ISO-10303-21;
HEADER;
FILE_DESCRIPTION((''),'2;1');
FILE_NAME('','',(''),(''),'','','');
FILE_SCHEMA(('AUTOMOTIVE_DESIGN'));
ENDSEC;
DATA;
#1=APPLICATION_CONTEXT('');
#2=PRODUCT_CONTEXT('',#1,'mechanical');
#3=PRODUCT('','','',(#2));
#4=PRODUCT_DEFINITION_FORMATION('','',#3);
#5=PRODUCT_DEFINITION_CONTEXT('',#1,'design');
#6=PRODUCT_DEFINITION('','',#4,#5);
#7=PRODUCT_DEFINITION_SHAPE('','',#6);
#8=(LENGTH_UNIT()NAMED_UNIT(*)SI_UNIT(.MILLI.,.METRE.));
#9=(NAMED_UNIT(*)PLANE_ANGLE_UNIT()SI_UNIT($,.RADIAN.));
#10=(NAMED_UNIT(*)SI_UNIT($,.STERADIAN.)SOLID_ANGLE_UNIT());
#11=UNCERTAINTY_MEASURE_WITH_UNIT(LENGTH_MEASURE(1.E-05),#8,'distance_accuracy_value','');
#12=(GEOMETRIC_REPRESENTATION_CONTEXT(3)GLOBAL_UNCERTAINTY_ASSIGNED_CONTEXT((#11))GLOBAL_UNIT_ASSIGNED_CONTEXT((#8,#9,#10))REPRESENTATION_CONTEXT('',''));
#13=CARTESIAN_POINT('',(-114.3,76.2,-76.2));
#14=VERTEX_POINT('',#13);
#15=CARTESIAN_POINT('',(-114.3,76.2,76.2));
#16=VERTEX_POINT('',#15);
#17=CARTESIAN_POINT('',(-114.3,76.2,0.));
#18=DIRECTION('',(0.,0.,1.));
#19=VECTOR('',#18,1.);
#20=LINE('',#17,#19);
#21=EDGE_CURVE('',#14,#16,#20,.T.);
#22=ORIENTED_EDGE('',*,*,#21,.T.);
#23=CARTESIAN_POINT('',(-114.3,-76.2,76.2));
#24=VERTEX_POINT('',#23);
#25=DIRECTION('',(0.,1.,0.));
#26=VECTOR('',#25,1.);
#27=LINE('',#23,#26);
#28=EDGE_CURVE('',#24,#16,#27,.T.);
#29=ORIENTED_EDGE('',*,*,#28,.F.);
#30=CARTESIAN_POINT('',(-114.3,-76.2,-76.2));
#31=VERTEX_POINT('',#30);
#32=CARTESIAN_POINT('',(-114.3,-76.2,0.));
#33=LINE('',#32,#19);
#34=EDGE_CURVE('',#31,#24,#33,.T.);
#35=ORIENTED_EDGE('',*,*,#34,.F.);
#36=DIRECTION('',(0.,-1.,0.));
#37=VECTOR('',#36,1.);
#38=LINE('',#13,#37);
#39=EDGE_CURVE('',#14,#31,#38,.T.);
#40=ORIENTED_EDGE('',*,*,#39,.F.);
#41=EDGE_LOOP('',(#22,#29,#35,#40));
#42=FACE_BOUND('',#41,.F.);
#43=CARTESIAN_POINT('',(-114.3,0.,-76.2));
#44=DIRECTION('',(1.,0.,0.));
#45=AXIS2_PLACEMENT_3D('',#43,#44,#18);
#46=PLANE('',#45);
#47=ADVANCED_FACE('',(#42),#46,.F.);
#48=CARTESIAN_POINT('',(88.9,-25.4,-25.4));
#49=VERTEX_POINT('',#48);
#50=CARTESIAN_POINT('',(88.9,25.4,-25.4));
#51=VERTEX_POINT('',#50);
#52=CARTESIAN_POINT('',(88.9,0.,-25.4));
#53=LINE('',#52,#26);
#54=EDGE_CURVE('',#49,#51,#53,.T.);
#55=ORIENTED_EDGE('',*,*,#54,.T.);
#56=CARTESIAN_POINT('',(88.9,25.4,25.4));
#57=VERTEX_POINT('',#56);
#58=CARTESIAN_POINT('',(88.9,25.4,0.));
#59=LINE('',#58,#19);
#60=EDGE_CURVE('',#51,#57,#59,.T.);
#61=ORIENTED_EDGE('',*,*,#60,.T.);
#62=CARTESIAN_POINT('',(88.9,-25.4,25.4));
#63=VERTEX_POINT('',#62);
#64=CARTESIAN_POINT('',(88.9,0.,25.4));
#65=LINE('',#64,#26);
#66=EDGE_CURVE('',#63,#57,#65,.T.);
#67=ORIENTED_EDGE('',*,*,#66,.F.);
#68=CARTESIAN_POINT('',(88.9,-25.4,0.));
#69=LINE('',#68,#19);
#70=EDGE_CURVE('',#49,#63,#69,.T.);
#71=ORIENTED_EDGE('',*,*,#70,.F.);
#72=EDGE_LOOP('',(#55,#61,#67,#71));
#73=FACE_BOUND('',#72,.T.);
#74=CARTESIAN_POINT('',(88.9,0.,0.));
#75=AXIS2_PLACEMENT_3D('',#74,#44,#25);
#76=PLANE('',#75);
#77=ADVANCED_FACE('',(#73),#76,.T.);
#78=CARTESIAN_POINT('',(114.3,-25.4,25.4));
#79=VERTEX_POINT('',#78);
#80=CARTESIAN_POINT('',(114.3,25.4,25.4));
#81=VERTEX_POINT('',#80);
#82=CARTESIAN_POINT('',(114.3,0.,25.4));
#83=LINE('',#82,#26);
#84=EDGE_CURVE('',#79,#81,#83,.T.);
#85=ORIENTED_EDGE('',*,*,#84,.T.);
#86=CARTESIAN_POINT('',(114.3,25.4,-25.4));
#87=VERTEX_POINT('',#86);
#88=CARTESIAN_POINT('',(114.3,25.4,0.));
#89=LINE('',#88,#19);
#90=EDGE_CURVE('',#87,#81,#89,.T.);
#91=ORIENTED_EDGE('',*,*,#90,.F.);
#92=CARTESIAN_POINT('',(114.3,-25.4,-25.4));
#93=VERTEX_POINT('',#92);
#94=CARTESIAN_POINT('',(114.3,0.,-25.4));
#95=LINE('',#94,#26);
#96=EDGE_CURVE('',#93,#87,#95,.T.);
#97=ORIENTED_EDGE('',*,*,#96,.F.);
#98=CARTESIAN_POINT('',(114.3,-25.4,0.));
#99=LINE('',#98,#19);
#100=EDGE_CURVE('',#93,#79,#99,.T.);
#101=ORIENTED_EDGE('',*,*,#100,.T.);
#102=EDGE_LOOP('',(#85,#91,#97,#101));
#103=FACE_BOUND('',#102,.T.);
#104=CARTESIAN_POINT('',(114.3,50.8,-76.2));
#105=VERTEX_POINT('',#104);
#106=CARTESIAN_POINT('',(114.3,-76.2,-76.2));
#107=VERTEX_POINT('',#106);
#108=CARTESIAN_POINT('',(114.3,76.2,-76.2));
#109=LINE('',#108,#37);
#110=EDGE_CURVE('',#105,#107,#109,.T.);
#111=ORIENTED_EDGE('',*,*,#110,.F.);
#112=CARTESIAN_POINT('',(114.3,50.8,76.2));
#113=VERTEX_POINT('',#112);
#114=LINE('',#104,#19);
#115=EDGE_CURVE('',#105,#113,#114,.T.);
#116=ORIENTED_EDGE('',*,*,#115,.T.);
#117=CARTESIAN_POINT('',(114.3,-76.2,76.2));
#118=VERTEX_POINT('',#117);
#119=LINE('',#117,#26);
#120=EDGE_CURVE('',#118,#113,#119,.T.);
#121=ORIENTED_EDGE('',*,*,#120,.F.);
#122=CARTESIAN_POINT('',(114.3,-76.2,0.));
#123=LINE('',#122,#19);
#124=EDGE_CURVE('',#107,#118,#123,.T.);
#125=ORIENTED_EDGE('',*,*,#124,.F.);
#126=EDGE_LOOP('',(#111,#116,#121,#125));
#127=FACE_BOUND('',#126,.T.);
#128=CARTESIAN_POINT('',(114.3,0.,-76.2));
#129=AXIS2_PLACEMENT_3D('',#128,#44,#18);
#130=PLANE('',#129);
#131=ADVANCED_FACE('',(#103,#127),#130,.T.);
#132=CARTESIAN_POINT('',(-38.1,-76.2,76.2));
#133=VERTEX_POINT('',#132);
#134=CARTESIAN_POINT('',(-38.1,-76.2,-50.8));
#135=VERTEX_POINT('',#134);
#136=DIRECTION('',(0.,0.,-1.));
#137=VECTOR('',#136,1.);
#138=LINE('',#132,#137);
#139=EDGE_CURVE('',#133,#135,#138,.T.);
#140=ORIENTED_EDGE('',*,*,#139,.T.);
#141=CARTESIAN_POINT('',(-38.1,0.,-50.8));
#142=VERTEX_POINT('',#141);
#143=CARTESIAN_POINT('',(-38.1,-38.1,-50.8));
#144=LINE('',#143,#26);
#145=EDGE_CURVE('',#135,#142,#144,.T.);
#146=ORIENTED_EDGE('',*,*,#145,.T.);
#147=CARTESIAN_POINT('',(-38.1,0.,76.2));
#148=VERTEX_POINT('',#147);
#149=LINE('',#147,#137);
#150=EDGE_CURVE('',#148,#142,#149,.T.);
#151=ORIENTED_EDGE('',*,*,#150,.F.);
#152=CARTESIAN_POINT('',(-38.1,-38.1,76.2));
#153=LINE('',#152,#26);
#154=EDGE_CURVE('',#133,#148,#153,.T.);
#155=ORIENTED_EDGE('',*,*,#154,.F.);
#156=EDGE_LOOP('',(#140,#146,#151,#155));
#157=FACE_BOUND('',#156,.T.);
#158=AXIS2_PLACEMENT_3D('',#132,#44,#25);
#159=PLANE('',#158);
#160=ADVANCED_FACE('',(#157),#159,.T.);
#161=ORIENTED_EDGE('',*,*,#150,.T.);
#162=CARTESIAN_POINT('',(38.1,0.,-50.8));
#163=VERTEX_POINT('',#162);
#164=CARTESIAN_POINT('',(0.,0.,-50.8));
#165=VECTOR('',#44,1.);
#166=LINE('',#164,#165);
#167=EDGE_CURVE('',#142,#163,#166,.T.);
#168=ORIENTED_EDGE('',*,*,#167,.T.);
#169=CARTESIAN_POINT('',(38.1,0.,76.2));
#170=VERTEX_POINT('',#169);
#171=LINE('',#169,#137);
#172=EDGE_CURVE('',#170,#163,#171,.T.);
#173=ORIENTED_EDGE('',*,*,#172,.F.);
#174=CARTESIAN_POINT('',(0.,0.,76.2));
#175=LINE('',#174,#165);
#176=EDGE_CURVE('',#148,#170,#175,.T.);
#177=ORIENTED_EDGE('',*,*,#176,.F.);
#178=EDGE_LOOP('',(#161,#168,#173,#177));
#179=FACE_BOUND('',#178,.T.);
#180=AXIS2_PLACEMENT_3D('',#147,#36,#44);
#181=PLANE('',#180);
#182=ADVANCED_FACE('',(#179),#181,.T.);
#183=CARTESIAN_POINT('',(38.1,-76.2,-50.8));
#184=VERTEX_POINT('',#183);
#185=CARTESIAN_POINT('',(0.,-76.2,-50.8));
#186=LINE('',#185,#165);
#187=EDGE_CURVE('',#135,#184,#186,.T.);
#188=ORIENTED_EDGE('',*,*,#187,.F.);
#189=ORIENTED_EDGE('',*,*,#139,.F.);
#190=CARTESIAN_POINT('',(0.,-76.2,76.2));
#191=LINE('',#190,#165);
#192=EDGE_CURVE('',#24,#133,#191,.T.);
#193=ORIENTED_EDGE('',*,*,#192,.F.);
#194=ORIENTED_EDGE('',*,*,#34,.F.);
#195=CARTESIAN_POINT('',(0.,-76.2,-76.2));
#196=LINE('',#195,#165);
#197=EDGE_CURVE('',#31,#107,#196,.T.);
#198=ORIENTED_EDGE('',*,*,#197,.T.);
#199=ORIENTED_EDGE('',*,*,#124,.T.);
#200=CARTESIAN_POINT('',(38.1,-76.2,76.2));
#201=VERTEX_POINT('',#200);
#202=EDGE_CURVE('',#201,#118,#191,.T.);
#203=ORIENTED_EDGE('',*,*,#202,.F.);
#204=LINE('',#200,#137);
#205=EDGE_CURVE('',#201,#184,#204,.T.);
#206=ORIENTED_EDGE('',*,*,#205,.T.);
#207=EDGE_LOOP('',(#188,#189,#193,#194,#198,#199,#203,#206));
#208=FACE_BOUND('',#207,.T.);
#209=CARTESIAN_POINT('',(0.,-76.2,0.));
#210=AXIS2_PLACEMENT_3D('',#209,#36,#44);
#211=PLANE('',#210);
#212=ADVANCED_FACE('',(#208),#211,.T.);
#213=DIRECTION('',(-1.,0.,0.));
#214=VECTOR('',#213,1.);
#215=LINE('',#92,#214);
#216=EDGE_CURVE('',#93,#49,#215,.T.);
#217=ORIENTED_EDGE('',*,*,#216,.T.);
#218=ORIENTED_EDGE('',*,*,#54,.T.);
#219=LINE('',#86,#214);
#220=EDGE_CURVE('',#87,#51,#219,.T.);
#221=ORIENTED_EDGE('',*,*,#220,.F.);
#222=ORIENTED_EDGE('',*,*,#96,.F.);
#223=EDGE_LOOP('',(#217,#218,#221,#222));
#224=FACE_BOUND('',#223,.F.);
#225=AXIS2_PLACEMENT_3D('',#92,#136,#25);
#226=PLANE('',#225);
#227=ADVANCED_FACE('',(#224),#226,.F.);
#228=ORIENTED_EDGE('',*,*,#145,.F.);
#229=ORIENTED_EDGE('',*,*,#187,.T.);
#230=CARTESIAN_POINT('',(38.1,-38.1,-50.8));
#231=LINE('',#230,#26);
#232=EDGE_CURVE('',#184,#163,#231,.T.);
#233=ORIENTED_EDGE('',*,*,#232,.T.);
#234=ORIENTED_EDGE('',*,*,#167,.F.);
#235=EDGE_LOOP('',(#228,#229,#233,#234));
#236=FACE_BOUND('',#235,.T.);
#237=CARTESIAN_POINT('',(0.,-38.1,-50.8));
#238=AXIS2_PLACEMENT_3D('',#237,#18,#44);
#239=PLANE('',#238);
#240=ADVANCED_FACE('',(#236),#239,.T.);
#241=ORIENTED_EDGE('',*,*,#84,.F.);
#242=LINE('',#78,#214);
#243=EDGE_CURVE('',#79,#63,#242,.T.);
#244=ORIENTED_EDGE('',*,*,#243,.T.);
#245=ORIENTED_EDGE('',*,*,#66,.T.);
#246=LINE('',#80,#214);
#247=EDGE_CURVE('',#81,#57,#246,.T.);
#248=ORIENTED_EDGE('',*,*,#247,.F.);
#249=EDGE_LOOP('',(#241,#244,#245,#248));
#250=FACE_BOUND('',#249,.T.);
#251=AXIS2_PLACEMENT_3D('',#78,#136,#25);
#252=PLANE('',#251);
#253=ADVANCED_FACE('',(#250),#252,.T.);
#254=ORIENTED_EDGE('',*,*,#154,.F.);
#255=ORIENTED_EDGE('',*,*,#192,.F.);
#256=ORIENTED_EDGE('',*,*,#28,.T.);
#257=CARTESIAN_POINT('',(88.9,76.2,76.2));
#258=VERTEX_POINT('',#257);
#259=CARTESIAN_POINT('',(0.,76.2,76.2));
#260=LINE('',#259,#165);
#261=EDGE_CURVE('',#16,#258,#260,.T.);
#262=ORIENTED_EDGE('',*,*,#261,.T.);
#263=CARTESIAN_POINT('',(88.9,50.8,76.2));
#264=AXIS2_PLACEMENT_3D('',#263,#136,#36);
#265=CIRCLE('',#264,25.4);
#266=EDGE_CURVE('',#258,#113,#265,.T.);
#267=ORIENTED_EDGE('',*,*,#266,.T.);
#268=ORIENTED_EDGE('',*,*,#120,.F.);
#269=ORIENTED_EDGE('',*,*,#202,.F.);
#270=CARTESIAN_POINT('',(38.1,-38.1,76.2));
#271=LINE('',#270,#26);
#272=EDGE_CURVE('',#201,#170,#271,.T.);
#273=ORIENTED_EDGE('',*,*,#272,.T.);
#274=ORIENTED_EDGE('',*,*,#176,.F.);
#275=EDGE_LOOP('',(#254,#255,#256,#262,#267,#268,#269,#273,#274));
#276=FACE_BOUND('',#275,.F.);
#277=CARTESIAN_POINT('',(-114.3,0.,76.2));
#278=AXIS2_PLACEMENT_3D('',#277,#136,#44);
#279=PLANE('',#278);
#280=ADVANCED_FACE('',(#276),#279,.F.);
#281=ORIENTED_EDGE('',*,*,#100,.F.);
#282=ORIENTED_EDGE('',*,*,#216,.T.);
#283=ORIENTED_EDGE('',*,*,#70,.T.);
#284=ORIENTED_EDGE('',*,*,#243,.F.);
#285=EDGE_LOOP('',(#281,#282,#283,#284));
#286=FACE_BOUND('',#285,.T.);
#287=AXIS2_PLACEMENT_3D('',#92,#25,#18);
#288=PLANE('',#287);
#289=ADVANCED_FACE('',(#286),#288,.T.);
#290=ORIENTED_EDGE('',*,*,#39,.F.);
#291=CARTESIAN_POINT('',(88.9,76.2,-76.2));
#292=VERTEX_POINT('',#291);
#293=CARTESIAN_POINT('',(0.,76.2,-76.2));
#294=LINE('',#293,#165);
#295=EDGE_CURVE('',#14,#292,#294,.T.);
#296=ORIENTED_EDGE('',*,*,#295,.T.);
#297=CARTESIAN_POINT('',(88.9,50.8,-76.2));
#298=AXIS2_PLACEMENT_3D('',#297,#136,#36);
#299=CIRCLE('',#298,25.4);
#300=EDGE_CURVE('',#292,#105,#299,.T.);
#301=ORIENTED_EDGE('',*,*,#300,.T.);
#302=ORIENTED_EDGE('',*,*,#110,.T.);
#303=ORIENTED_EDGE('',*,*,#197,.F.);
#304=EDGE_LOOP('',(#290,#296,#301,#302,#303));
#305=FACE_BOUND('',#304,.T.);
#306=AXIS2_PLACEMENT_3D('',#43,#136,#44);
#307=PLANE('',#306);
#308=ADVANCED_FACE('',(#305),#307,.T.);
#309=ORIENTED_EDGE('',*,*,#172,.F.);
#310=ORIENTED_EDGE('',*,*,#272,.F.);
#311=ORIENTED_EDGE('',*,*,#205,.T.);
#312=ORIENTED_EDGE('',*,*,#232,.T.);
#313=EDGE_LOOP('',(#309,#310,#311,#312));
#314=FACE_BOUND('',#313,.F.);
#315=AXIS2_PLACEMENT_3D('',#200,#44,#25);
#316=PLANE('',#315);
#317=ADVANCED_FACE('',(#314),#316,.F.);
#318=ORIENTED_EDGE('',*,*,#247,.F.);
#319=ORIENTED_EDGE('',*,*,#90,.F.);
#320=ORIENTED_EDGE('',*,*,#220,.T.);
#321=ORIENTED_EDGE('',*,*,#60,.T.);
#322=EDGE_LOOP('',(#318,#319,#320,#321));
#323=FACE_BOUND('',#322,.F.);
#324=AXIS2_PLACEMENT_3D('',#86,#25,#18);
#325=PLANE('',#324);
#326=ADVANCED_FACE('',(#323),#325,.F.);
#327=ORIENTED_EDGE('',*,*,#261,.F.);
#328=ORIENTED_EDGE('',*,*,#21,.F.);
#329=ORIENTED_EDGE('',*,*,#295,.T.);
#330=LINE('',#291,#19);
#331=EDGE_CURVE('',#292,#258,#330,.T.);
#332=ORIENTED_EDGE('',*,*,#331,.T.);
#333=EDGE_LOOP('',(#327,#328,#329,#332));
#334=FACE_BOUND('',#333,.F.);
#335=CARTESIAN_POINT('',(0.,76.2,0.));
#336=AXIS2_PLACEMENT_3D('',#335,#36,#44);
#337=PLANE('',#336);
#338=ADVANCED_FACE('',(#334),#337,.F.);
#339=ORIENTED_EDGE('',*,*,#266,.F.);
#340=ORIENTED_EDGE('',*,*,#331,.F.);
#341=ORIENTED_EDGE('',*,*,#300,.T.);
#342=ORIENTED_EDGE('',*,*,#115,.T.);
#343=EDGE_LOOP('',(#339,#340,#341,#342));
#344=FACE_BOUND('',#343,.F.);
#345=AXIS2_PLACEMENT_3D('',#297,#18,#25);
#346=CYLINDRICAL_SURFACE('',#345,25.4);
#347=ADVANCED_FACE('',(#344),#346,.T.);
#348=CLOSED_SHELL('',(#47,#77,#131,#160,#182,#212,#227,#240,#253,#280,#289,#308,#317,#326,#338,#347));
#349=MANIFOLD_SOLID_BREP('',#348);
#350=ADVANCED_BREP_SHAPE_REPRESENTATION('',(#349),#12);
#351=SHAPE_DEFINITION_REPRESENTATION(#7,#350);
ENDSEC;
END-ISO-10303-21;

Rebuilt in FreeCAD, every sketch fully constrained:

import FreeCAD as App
import Part
import Sketcher
Q = App.Units.Quantity


def edges_at(feature, points):
    """Names of the edges that pass closest to the given points."""
    edges = feature.Shape.Edges
    near = lambda p: min(range(len(edges)), key=lambda i: edges[i].distToShape(Part.Vertex(*p))[0])
    return sorted({f"Edge{near(p) + 1}" for p in points})


def add_polygon(sketch, points):
    """Adds a closed chain of lines whose ends are joined by coincident constraints."""
    first, n = sketch.GeometryCount, len(points)
    for a, b in zip(points, points[1:] + points[:1]):
        sketch.addGeometry(Part.LineSegment(App.Vector(*a, 0), App.Vector(*b, 0)), False)
    for i in range(n):
        sketch.addConstraint(Sketcher.Constraint("Coincident", first + i, 2, first + (i + 1) % n, 1))

doc = App.newDocument("Part")
params = doc.addObject("Spreadsheet::Sheet", "Params")
for row, (alias, value) in enumerate([
    ("sketch1_width", "9 in"),
    ("sketch1_height", "6 in"),
    ("pad1_length", "6 in"),
    ("sketch2_width", "3 in"),
    ("pocket1_length", "5 in"),
    ("fillet_radius", "1 in"),
    ("sketch3_width", "2 in"),
    ("pocket2_length", "1 in"),
], start=1):
    params.set(f"A{row}", alias)
    params.set(f"B{row}", "=" + value)
    params.setAlias(f"B{row}", alias)

body = doc.addObject("PartDesign::Body", "Body")

sketch1 = body.newObject("Sketcher::SketchObject", "Sketch")
sketch1.AttachmentSupport = (doc.getObject("XZ_Plane"), [""])
sketch1.MapMode = "FlatFace"
add_polygon(sketch1, [(-114.3, 76.2), (-114.3, -76.2), (114.3, -76.2), (114.3, 76.2)])
sketch1.addConstraint([
    Sketcher.Constraint("Vertical", 0),
    Sketcher.Constraint("Horizontal", 1),
    Sketcher.Constraint("Vertical", 2),
    Sketcher.Constraint("Horizontal", 3),
    Sketcher.Constraint("Symmetric", 0, 2, 2, 2, -1, 1),
    Sketcher.Constraint("DistanceX", 1, 1, 1, 2, Q("9 in")),
    Sketcher.Constraint("DistanceY", 0, 2, 0, 1, Q("6 in")),
])
sketch1.setExpression("Constraints[9]", "Params.sketch1_width")
sketch1.setExpression("Constraints[10]", "Params.sketch1_height")
pad1 = body.newObject("PartDesign::Pad", "Pad")
pad1.Profile = sketch1
pad1.setExpression("Length", "Params.pad1_length")
pad1.Midplane = True

sketch2 = body.newObject("Sketcher::SketchObject", "Sketch001")
sketch2.AttachmentSupport = (doc.getObject("XY_Plane"), [""])
sketch2.MapMode = "FlatFace"
sketch2.AttachmentOffset = App.Placement(App.Vector(0, 0, 3 * 25.4), App.Rotation())
add_polygon(sketch2, [(-38.1, 0), (-38.1, -76.2), (38.1, -76.2), (38.1, 0)])
sketch2.addConstraint([
    Sketcher.Constraint("Vertical", 0),
    Sketcher.Constraint("Horizontal", 1),
    Sketcher.Constraint("Vertical", 2),
    Sketcher.Constraint("Horizontal", 3),
    Sketcher.Constraint("Symmetric", 2, 2, 3, 2, -1, 1),
    Sketcher.Constraint("Equal", 3, 0),
    Sketcher.Constraint("DistanceX", 1, 1, 1, 2, Q("3 in")),
])
sketch2.setExpression("Constraints[10]", "Params.sketch2_width")
pocket1 = body.newObject("PartDesign::Pocket", "Pocket")
pocket1.Profile = sketch2
pocket1.setExpression("Length", "Params.pocket1_length")
doc.recompute()

fillet = body.newObject("PartDesign::Fillet", "Fillet")
fillet.Base = (pocket1, edges_at(pocket1, [(114.3, 76.2, 0)]))
fillet.setExpression("Radius", "Params.fillet_radius")

sketch3 = body.newObject("Sketcher::SketchObject", "Sketch002")
sketch3.AttachmentSupport = (doc.getObject("YZ_Plane"), [""])
sketch3.MapMode = "FlatFace"
sketch3.AttachmentOffset = App.Placement(App.Vector(0, 0, 4.5 * 25.4), App.Rotation())
add_polygon(sketch3, [(-25.4, 25.4), (-25.4, -25.4), (25.4, -25.4), (25.4, 25.4)])
sketch3.addConstraint([
    Sketcher.Constraint("Vertical", 0),
    Sketcher.Constraint("Horizontal", 1),
    Sketcher.Constraint("Vertical", 2),
    Sketcher.Constraint("Horizontal", 3),
    Sketcher.Constraint("Symmetric", 0, 2, 2, 2, -1, 1),
    Sketcher.Constraint("Equal", 3, 0),
    Sketcher.Constraint("DistanceX", 1, 1, 1, 2, Q("2 in")),
])
sketch3.setExpression("Constraints[10]", "Params.sketch3_width")
pocket2 = body.newObject("PartDesign::Pocket", "Pocket001")
pocket2.Profile = sketch3
pocket2.setExpression("Length", "Params.pocket2_length")

doc.recompute()
